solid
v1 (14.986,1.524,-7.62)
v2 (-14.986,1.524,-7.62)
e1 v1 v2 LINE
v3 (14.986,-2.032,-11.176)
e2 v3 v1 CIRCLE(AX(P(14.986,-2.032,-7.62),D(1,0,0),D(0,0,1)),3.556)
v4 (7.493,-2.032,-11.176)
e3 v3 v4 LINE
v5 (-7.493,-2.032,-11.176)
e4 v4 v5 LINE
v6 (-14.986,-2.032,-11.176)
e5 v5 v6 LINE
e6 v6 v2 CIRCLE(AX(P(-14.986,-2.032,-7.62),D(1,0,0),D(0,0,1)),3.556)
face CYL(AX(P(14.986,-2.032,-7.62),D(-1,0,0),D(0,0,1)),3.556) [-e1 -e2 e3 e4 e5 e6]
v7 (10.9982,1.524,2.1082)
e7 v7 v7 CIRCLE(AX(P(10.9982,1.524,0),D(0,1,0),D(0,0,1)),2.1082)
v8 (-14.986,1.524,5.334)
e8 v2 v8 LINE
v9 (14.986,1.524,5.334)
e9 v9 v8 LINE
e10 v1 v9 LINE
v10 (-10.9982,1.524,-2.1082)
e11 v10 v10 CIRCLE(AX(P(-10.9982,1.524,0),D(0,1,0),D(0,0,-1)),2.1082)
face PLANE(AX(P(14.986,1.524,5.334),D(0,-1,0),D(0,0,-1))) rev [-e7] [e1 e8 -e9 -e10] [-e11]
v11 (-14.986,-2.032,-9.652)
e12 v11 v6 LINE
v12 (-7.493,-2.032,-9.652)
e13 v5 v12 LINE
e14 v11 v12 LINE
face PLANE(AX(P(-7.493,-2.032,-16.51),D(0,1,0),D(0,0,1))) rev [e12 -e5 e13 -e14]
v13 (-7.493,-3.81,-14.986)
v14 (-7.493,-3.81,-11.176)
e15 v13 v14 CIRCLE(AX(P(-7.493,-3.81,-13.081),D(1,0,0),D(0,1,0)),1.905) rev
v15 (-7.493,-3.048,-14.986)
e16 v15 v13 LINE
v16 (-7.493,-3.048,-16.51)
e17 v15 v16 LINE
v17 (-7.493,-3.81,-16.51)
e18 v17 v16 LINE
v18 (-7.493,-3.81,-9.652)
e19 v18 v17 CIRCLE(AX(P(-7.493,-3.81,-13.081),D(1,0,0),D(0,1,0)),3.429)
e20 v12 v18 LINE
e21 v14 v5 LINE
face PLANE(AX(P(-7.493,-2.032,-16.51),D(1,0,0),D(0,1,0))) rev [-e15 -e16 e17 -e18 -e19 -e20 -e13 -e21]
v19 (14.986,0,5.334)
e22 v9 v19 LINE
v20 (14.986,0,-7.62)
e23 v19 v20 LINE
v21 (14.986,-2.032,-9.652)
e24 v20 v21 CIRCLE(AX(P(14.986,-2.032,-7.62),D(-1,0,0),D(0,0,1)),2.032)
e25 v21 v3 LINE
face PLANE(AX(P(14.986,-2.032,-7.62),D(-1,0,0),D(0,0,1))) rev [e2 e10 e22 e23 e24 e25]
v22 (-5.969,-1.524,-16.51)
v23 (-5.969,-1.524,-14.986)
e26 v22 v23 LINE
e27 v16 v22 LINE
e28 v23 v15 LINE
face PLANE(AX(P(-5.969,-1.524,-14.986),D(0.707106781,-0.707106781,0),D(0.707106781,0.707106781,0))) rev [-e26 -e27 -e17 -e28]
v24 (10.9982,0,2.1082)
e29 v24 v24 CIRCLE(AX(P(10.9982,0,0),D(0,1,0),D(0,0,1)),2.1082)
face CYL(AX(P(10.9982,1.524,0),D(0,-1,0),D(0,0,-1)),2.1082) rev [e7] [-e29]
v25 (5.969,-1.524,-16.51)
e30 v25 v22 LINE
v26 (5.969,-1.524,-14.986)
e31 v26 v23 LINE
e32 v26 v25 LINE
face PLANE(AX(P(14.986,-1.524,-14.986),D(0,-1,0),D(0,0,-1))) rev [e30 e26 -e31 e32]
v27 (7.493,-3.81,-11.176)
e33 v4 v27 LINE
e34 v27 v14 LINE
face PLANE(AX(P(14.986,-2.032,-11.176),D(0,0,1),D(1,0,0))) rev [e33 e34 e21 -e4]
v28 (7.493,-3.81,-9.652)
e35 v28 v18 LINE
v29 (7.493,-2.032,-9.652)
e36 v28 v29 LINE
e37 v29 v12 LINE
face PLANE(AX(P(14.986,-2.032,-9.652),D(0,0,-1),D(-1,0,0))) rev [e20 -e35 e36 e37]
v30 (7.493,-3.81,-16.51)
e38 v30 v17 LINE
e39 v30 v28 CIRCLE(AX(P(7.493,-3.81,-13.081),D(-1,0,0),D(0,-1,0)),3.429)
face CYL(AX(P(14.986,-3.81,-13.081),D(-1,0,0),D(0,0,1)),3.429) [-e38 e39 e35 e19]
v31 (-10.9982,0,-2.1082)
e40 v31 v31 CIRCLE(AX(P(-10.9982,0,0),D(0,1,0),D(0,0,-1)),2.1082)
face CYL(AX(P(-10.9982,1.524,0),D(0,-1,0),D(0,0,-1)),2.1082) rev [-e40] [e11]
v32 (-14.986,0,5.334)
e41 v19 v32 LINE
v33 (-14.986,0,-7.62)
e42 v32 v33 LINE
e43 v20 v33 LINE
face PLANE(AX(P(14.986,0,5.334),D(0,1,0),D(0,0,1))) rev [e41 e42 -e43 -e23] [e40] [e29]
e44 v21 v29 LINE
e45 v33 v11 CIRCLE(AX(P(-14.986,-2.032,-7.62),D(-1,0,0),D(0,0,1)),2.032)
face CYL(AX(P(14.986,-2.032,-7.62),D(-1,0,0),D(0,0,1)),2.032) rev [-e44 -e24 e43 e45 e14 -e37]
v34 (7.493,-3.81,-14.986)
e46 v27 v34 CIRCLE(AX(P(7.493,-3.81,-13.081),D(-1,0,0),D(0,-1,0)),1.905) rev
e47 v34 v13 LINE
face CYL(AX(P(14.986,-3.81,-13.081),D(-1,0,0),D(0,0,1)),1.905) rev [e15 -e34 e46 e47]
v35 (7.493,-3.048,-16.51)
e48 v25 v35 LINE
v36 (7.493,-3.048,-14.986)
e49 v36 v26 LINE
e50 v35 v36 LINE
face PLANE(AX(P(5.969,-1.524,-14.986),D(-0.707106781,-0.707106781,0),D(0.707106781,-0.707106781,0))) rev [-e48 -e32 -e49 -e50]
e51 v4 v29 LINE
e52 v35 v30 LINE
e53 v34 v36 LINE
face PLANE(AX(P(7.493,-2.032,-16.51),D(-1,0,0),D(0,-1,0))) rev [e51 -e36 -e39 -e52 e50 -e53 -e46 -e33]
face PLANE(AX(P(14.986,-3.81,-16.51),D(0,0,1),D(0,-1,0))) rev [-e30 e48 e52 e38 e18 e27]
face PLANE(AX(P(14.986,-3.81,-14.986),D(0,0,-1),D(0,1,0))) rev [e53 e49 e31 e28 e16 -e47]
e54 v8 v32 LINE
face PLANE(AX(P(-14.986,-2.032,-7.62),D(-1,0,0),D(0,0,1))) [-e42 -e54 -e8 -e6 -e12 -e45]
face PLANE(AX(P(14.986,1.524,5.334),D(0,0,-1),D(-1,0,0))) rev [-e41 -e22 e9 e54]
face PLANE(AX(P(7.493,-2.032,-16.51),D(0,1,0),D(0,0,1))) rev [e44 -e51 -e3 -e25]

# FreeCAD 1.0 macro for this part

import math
import FreeCAD as App
import Part
import Sketcher

V = App.Vector
Q = App.Units.Quantity


def edges_at(feature, points):
    """Names of the edges that pass closest to the given points."""
    edges = feature.Shape.Edges
    near = lambda p: min(range(len(edges)), key=lambda i: edges[i].distToShape(Part.Vertex(*p))[0])
    return sorted({f"Edge{near(p) + 1}" for p in points})

doc = App.newDocument("Part")
body = doc.addObject("PartDesign::Body", "Body")

# Sketch on YZ plane
sketch1 = doc.addObject("Sketcher::SketchObject", "Sketch")
body.addObject(sketch1)
sketch1.AttachmentSupport = (doc.YZ_Plane, [""])
sketch1.MapMode = "FlatFace"
sketch1.addGeometry([
    Part.LineSegment(V(0, 5.334, 0), V(0, -7.62, 0)),  # 0
    Part.ArcOfCircle(Part.Circle(V(-2.032, -7.62, 0), V(0, 0, 1), 2.032), math.radians(-90), math.radians(0)),  # 1
    Part.LineSegment(V(-2.032, -9.652, 0), V(-3.81, -9.652, 0)),  # 2
    Part.ArcOfCircle(Part.Circle(V(-3.81, -13.081, 0), V(0, 0, 1), 3.429), math.radians(90), math.radians(270)),  # 3
    Part.LineSegment(V(-3.81, -16.51, 0), V(-1.524, -16.51, 0)),  # 4
    Part.LineSegment(V(-1.524, -16.51, 0), V(-1.524, -14.986, 0)),  # 5
    Part.LineSegment(V(-1.524, -14.986, 0), V(-3.81, -14.986, 0)),  # 6
    Part.ArcOfCircle(Part.Circle(V(-3.81, -13.081, 0), V(0, 0, 1), 1.905), math.radians(90), math.radians(270)),  # 7
    Part.LineSegment(V(-3.81, -11.176, 0), V(-2.032, -11.176, 0)),  # 8
    Part.ArcOfCircle(Part.Circle(V(-2.032, -7.62, 0), V(0, 0, 1), 3.556), math.radians(-90), math.radians(0)),  # 9
    Part.LineSegment(V(1.524, -7.62, 0), V(1.524, 5.334, 0)),  # 10
    Part.LineSegment(V(1.524, 5.334, 0), V(0, 5.334, 0)),  # 11
], False)
sketch1.addConstraint([
    Sketcher.Constraint("Tangent", 0, 2, 1, 2),
    Sketcher.Constraint("Tangent", 1, 1, 2, 1),
    Sketcher.Constraint("Tangent", 2, 2, 3, 1),
    Sketcher.Constraint("Tangent", 3, 2, 4, 1),
    Sketcher.Constraint("Coincident", 4, 2, 5, 1),
    Sketcher.Constraint("Coincident", 5, 2, 6, 1),
    Sketcher.Constraint("Tangent", 6, 2, 7, 2),
    Sketcher.Constraint("Tangent", 7, 1, 8, 1),
    Sketcher.Constraint("Tangent", 8, 2, 9, 1),
    Sketcher.Constraint("Tangent", 9, 2, 10, 1),
    Sketcher.Constraint("Coincident", 10, 2, 11, 1),
    Sketcher.Constraint("Coincident", 11, 2, 0, 1),
    Sketcher.Constraint("Vertical", 0),
    Sketcher.Constraint("Horizontal", 2),
    Sketcher.Constraint("Horizontal", 4),
    Sketcher.Constraint("Vertical", 5),
    Sketcher.Constraint("Horizontal", 6),
    Sketcher.Constraint("Horizontal", 8),
    Sketcher.Constraint("Vertical", 10),
    Sketcher.Constraint("Horizontal", 11),
    Sketcher.Constraint("Coincident", 7, 3, 3, 3),
    Sketcher.Constraint("Coincident", 9, 3, 1, 3),
    Sketcher.Constraint("PointOnObject", 0, 2, -2),
    Sketcher.Constraint("Radius", 1, Q("0.08 in")),
    Sketcher.Constraint("Radius", 9, Q("0.14 in")),
    Sketcher.Constraint("Radius", 3, Q("0.135 in")),
    Sketcher.Constraint("DistanceX", 2, 2, 2, 1, Q("0.07 in")),
    Sketcher.Constraint("DistanceX", 4, 1, 4, 2, Q("0.09 in")),
    Sketcher.Constraint("DistanceY", 0, 2, 0, 1, Q("0.51 in")),
    Sketcher.Constraint("DistanceY", 1, 3, -1, 1, Q("0.3 in")),
])
pad1 = doc.addObject("PartDesign::Pad", "Pad")
body.addObject(pad1)
pad1.Profile = sketch1
pad1.Length = Q("1.18 in")
pad1.Midplane = True

# Sketch on XY plane
sketch2 = doc.addObject("Sketcher::SketchObject", "Sketch001")
body.addObject(sketch2)
sketch2.AttachmentSupport = (doc.XY_Plane, [""])
sketch2.MapMode = "FlatFace"
sketch2.addGeometry([
    Part.LineSegment(V(-17.619199, -2.032, 0), V(-17.619199, -11.557984, 0)),  # 0
    Part.LineSegment(V(-17.619199, -11.557984, 0), V(-7.493, -11.557984, 0)),  # 1
    Part.LineSegment(V(-7.493, -11.557984, 0), V(-7.493, -2.032, 0)),  # 2
    Part.LineSegment(V(-7.493, -2.032, 0), V(-17.619199, -2.032, 0)),  # 3
    Part.LineSegment(V(7.493, -2.032, 0), V(7.493, -11.557984, 0)),  # 4
    Part.LineSegment(V(7.493, -11.557984, 0), V(17.619199, -11.557984, 0)),  # 5
    Part.LineSegment(V(17.619199, -11.557984, 0), V(17.619199, -2.032, 0)),  # 6
    Part.LineSegment(V(17.619199, -2.032, 0), V(7.493, -2.032, 0)),  # 7
], False)
sketch2.addConstraint([
    Sketcher.Constraint("Coincident", 0, 2, 1, 1),
    Sketcher.Constraint("Coincident", 1, 2, 2, 1),
    Sketcher.Constraint("Coincident", 2, 2, 3, 1),
    Sketcher.Constraint("Coincident", 3, 2, 0, 1),
    Sketcher.Constraint("Coincident", 4, 2, 5, 1),
    Sketcher.Constraint("Coincident", 5, 2, 6, 1),
    Sketcher.Constraint("Coincident", 6, 2, 7, 1),
    Sketcher.Constraint("Coincident", 7, 2, 4, 1),
    Sketcher.Constraint("Vertical", 0),
    Sketcher.Constraint("Horizontal", 1),
    Sketcher.Constraint("Vertical", 2),
    Sketcher.Constraint("Horizontal", 3),
    Sketcher.Constraint("Vertical", 4),
    Sketcher.Constraint("Horizontal", 5),
    Sketcher.Constraint("Vertical", 6),
    Sketcher.Constraint("Horizontal", 7),
    Sketcher.Constraint("Symmetric", 1, 2, 4, 2, -2),
    Sketcher.Constraint("Symmetric", 3, 2, 6, 2, -2),
    Sketcher.Constraint("DistanceY", 2, 2, -1, 1, Q("0.08 in")),
    Sketcher.Constraint("DistanceX", 1, 2, 4, 2, Q("0.59 in")),
    Sketcher.Constraint("DistanceX", 1, 1, 1, 2, 10.126199),
    Sketcher.Constraint("DistanceY", 0, 2, 0, 1, 9.525984),
])
pocket1 = doc.addObject("PartDesign::Pocket", "Pocket")
body.addObject(pocket1)
pocket1.Profile = sketch2
pocket1.Type = "ThroughAll"

# Sketch on XZ plane
sketch3 = doc.addObject("Sketcher::SketchObject", "Sketch002")
body.addObject(sketch3)
sketch3.AttachmentSupport = (doc.XZ_Plane, [""])
sketch3.MapMode = "FlatFace"
sketch3.addGeometry([
    Part.LineSegment(V(-18.831245, -19.830509, 0), V(-18.831245, -13.650236, 0)),  # 0
    Part.LineSegment(V(-18.831245, -13.650236, 0), V(-7.493, -13.650236, 0)),  # 1
    Part.LineSegment(V(-7.493, -13.650236, 0), V(-7.493, -19.830509, 0)),  # 2
    Part.LineSegment(V(-7.493, -19.830509, 0), V(-18.831245, -19.830509, 0)),  # 3
    Part.LineSegment(V(7.493, -20.06285, 0), V(7.493, -13.092617, 0)),  # 4
    Part.LineSegment(V(7.493, -13.092617, 0), V(16.507834, -13.092617, 0)),  # 5
    Part.LineSegment(V(16.507834, -13.092617, 0), V(16.507834, -20.06285, 0)),  # 6
    Part.LineSegment(V(16.507834, -20.06285, 0), V(7.493, -20.06285, 0)),  # 7
], False)
sketch3.addConstraint([
    Sketcher.Constraint("Coincident", 0, 2, 1, 1),
    Sketcher.Constraint("Coincident", 1, 2, 2, 1),
    Sketcher.Constraint("Coincident", 2, 2, 3, 1),
    Sketcher.Constraint("Coincident", 3, 2, 0, 1),
    Sketcher.Constraint("Coincident", 4, 2, 5, 1),
    Sketcher.Constraint("Coincident", 5, 2, 6, 1),
    Sketcher.Constraint("Coincident", 6, 2, 7, 1),
    Sketcher.Constraint("Coincident", 7, 2, 4, 1),
    Sketcher.Constraint("Vertical", 0),
    Sketcher.Constraint("Horizontal", 1),
    Sketcher.Constraint("Vertical", 2),
    Sketcher.Constraint("Horizontal", 3),
    Sketcher.Constraint("Vertical", 4),
    Sketcher.Constraint("Horizontal", 5),
    Sketcher.Constraint("Vertical", 6),
    Sketcher.Constraint("Horizontal", 7),
    Sketcher.Constraint("DistanceX", 1, 2, 4, 2, Q("0.59 in")),
    Sketcher.Constraint("DistanceX", 1, 2, -1, 1, Q("0.295 in")),
    Sketcher.Constraint("DistanceX", 1, 1, 1, 2, 11.338245),
    Sketcher.Constraint("DistanceX", 5, 1, 5, 2, 9.014834),
    Sketcher.Constraint("DistanceY", 0, 1, 0, 2, 6.180273),
    Sketcher.Constraint("DistanceY", 4, 1, 4, 2, 6.970233),
    Sketcher.Constraint("DistanceY", 2, 2, -1, 1, 19.830509),
    Sketcher.Constraint("DistanceY", 6, 2, -1, 1, 20.06285),
])
pocket2 = doc.addObject("PartDesign::Pocket", "Pocket001")
body.addObject(pocket2)
pocket2.Profile = sketch3
pocket2.Type = "ThroughAll"
pocket2.Reversed = True
doc.recompute()

chamfer = doc.addObject("PartDesign::Chamfer", "Chamfer")
body.addObject(chamfer)
chamfer.Base = (pocket2, edges_at(pocket2, [(7.493, -1.524, -15.748), (-7.493, -1.524, -15.748)]))
chamfer.Size = Q("0.06 in")

# Sketch on XZ plane
sketch4 = doc.addObject("Sketcher::SketchObject", "Sketch003")
body.addObject(sketch4)
sketch4.AttachmentSupport = (doc.XZ_Plane, [""])
sketch4.MapMode = "FlatFace"
sketch4.addGeometry([
    Part.Circle(V(10.9982, 0, 0), V(0, 0, 1), 2.1082),
    Part.Circle(V(-10.9982, 0, 0), V(0, 0, 1), 2.1082),
], False)
sketch4.addConstraint([
    Sketcher.Constraint("Equal", 0, 1),
    Sketcher.Constraint("Symmetric", 0, 3, 1, 3, -1, 1),
    Sketcher.Constraint("PointOnObject", 0, 3, -1),
    Sketcher.Constraint("Diameter", 0, Q("0.166 in")),
    Sketcher.Constraint("DistanceX", -1, 1, 0, 3, Q("0.433 in")),
])
pocket3 = doc.addObject("PartDesign::Pocket", "Pocket002")
body.addObject(pocket3)
pocket3.Profile = sketch4
pocket3.Type = "ThroughAll"

doc.recompute()
